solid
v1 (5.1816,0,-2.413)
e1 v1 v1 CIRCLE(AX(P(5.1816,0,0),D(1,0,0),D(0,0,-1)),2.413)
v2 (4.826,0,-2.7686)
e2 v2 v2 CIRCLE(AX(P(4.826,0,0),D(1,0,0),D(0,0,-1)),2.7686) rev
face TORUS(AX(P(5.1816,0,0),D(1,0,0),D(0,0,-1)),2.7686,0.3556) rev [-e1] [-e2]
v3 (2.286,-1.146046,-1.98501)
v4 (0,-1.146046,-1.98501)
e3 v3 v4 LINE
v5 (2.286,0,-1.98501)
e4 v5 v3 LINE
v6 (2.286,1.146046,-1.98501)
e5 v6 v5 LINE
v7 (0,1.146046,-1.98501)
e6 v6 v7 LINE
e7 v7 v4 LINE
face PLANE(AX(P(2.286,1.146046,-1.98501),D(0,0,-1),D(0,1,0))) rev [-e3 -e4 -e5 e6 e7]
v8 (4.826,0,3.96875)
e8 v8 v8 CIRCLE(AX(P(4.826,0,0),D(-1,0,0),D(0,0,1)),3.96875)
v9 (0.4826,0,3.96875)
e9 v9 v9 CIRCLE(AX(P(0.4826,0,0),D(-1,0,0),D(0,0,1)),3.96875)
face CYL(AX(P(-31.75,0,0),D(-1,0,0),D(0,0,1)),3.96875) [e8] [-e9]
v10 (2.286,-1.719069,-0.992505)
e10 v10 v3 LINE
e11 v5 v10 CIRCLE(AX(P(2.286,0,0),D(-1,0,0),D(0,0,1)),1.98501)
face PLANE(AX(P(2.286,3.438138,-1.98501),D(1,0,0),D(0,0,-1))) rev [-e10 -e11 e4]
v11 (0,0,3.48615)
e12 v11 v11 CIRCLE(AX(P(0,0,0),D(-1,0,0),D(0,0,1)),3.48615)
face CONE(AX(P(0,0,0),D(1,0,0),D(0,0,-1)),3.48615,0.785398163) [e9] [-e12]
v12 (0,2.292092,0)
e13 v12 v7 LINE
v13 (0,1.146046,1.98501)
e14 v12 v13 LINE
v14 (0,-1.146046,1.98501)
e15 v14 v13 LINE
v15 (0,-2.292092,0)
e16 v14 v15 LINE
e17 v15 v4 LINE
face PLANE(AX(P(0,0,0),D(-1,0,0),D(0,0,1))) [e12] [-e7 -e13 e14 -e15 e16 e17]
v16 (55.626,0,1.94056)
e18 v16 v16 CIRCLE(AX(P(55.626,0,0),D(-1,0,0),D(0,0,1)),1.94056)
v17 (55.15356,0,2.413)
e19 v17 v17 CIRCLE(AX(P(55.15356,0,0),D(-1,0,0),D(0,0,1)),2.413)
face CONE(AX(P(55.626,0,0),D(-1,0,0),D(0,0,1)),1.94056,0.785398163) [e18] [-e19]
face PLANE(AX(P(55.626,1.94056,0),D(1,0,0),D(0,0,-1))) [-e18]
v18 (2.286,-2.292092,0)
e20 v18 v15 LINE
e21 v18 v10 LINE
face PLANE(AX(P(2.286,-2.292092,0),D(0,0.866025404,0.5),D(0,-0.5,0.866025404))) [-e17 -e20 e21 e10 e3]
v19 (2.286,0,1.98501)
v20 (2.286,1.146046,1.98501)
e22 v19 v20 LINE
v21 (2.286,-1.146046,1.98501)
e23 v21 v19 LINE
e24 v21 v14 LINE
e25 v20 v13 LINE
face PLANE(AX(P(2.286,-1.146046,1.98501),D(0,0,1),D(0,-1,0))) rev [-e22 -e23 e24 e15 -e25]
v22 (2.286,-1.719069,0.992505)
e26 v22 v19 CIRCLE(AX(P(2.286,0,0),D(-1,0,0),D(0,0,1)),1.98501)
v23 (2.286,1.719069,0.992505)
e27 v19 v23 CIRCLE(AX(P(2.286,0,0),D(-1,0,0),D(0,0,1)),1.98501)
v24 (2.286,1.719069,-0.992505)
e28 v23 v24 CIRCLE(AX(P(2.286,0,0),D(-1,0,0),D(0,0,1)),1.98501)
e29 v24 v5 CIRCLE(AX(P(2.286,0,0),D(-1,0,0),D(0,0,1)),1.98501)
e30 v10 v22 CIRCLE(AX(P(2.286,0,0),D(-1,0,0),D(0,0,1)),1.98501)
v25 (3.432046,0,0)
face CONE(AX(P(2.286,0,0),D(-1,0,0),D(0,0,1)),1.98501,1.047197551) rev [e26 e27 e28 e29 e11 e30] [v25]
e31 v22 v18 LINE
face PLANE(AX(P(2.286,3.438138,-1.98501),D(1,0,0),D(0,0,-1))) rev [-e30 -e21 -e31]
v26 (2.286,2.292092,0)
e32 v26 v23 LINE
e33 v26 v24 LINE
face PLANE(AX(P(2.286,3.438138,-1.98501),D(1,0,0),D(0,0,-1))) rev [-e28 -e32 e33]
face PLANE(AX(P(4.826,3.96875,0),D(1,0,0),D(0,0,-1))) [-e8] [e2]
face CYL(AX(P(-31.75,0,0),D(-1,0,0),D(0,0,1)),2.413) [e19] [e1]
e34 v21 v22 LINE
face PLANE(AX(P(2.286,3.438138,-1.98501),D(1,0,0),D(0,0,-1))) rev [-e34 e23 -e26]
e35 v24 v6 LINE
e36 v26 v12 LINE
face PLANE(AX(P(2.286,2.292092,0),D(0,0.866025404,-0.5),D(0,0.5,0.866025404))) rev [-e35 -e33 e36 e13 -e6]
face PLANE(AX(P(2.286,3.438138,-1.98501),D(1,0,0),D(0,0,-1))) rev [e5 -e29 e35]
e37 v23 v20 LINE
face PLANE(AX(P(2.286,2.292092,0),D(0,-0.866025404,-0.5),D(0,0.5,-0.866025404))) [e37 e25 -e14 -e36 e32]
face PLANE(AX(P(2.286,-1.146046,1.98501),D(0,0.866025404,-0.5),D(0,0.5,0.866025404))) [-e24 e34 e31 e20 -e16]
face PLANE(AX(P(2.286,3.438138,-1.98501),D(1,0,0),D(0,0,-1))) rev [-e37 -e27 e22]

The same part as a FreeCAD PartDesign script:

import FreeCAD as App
import Part
import Sketcher
from FreeCAD import Vector
Q = App.Units.Quantity


def edges_at(feature, points):
    """Names of the edges that pass closest to the given points."""
    edges = feature.Shape.Edges
    near = lambda p: min(range(len(edges)), key=lambda i: edges[i].distToShape(Part.Vertex(*p))[0])
    return sorted({f"Edge{near(p) + 1}" for p in points})


def add_polygon(sketch, points):
    """Adds a closed chain of lines whose ends are joined by coincident constraints."""
    first, n = sketch.GeometryCount, len(points)
    for a, b in zip(points, points[1:] + points[:1]):
        sketch.addGeometry(Part.LineSegment(App.Vector(*a, 0), App.Vector(*b, 0)), False)
    for i in range(n):
        sketch.addConstraint(Sketcher.Constraint("Coincident", first + i, 2, first + (i + 1) % n, 1))

doc = App.newDocument("Part")
body = doc.addObject("PartDesign::Body", "Body")

# Sketch on XY plane
sketch1 = body.newObject("Sketcher::SketchObject", "Sketch")
sketch1.AttachmentSupport = (doc.getObject("XY_Plane"), [""])
sketch1.MapMode = "FlatFace"
add_polygon(sketch1, [(0, 3.5), (0, 0), (55.6, 0), (55.6, 1.9), (55.2, 2.4), (4.8, 2.4), (4.8, 4), (0.5, 4)])  # lines 0-7
sketch1.addConstraint(Sketcher.Constraint("Vertical", 0))
sketch1.addConstraint(Sketcher.Constraint("Horizontal", 1))
sketch1.addConstraint(Sketcher.Constraint("Vertical", 2))
sketch1.addConstraint(Sketcher.Constraint("Horizontal", 4))
sketch1.addConstraint(Sketcher.Constraint("Vertical", 5))
sketch1.addConstraint(Sketcher.Constraint("Horizontal", 6))
sketch1.addConstraint(Sketcher.Constraint("Coincident", 0, 2, -1, 1))
sketch1.addConstraint(Sketcher.Constraint("Perpendicular", 3, 7))
sketch1.addConstraint(Sketcher.Constraint("Angle", 3, Q("135 deg")))
sketch1.addConstraint(Sketcher.Constraint("DistanceX", 4, 2, 2, 2, Q("2 in")))
sketch1.addConstraint(Sketcher.Constraint("DistanceX", 1, 1, 1, 2, Q("2.19 in")))
sketch1.addConstraint(Sketcher.Constraint("DistanceX", 6, 2, 6, 1, Q("0.171 in")))
sketch1.addConstraint(Sketcher.Constraint("DistanceX", 4, 2, 4, 1, Q("1.9814 in")))
sketch1.addConstraint(Sketcher.Constraint("DistanceY", 2, 1, 2, 2, Q("0.0764 in")))
sketch1.addConstraint(Sketcher.Constraint("DistanceY", -1, 1, 5, 2, Q("0.15625 in")))
revolution = body.newObject("PartDesign::Revolution", "Revolution")
revolution.Profile = sketch1
revolution.ReferenceAxis = (sketch1, ["H_Axis"])
revolution.Angle = 360
doc.recompute()

fillet = body.newObject("PartDesign::Fillet", "Fillet")
fillet.Base = (revolution, edges_at(revolution, [(4.826, -2.413, 0)]))
fillet.Radius = Q("0.014 in")

# Sketch on XY plane
sketch2 = body.newObject("Sketcher::SketchObject", "Sketch001")
sketch2.AttachmentSupport = (doc.getObject("XY_Plane"), [""])
sketch2.MapMode = "FlatFace"
add_polygon(sketch2, [(2.3, 2), (0, 2), (0, 0), (3.4, 0)])  # lines 0-3
sketch2.addConstraint(Sketcher.Constraint("Horizontal", 0))
sketch2.addConstraint(Sketcher.Constraint("Vertical", 1))
sketch2.addConstraint(Sketcher.Constraint("Horizontal", 2))
sketch2.addConstraint(Sketcher.Constraint("Coincident", 1, 2, -1, 1))
sketch2.addConstraint(Sketcher.Constraint("Angle", 3, Q("120 deg")))
sketch2.addConstraint(Sketcher.Constraint("DistanceX", 0, 2, 0, 1, Q("0.09 in")))
sketch2.addConstraint(Sketcher.Constraint("DistanceY", 1, 2, 1, 1, 1.98501))
groove = body.newObject("PartDesign::Groove", "Groove")
groove.Profile = sketch2
groove.ReferenceAxis = (sketch2, ["H_Axis"])
groove.Angle = 360

# Sketch on YZ plane
sketch3 = body.newObject("Sketcher::SketchObject", "Sketch002")
sketch3.AttachmentSupport = (doc.getObject("YZ_Plane"), [""])
sketch3.MapMode = "FlatFace"
add_polygon(sketch3, [(2.3, 0), (1.1, -2), (-1.1, -2), (-2.3, 0), (-1.1, 2), (1.1, 2)])  # lines 0-5
sketch3.addConstraint(Sketcher.Constraint("Horizontal", 1))
sketch3.addConstraint(Sketcher.Constraint("Horizontal", 4))
sketch3.addConstraint(Sketcher.Constraint("Symmetric", 0, 2, 3, 2, -1, 1))
sketch3.addConstraint(Sketcher.Constraint("Symmetric", 2, 2, 5, 2, -1, 1))
sketch3.addConstraint(Sketcher.Constraint("PointOnObject", 2, 2, -1))
sketch3.addConstraint(Sketcher.Constraint("Parallel", 2, 5))
sketch3.addConstraint(Sketcher.Constraint("Vertical", 1, 2, 3, 2))
sketch3.addConstraint(Sketcher.Constraint("Angle", 0, Q("-120 deg")))
sketch3.addConstraint(Sketcher.Constraint("DistanceY", 1, 2, 3, 2, Q("0.1563 in")))
sketch3.addConstraint(Sketcher.Constraint("DistanceX", 1, 2, 1, 1, 2.292092))
pocket1 = body.newObject("PartDesign::Pocket", "Pocket")
pocket1.Profile = sketch3
pocket1.Length = Q("0.09 in")
pocket1.Reversed = True

doc.recompute()
